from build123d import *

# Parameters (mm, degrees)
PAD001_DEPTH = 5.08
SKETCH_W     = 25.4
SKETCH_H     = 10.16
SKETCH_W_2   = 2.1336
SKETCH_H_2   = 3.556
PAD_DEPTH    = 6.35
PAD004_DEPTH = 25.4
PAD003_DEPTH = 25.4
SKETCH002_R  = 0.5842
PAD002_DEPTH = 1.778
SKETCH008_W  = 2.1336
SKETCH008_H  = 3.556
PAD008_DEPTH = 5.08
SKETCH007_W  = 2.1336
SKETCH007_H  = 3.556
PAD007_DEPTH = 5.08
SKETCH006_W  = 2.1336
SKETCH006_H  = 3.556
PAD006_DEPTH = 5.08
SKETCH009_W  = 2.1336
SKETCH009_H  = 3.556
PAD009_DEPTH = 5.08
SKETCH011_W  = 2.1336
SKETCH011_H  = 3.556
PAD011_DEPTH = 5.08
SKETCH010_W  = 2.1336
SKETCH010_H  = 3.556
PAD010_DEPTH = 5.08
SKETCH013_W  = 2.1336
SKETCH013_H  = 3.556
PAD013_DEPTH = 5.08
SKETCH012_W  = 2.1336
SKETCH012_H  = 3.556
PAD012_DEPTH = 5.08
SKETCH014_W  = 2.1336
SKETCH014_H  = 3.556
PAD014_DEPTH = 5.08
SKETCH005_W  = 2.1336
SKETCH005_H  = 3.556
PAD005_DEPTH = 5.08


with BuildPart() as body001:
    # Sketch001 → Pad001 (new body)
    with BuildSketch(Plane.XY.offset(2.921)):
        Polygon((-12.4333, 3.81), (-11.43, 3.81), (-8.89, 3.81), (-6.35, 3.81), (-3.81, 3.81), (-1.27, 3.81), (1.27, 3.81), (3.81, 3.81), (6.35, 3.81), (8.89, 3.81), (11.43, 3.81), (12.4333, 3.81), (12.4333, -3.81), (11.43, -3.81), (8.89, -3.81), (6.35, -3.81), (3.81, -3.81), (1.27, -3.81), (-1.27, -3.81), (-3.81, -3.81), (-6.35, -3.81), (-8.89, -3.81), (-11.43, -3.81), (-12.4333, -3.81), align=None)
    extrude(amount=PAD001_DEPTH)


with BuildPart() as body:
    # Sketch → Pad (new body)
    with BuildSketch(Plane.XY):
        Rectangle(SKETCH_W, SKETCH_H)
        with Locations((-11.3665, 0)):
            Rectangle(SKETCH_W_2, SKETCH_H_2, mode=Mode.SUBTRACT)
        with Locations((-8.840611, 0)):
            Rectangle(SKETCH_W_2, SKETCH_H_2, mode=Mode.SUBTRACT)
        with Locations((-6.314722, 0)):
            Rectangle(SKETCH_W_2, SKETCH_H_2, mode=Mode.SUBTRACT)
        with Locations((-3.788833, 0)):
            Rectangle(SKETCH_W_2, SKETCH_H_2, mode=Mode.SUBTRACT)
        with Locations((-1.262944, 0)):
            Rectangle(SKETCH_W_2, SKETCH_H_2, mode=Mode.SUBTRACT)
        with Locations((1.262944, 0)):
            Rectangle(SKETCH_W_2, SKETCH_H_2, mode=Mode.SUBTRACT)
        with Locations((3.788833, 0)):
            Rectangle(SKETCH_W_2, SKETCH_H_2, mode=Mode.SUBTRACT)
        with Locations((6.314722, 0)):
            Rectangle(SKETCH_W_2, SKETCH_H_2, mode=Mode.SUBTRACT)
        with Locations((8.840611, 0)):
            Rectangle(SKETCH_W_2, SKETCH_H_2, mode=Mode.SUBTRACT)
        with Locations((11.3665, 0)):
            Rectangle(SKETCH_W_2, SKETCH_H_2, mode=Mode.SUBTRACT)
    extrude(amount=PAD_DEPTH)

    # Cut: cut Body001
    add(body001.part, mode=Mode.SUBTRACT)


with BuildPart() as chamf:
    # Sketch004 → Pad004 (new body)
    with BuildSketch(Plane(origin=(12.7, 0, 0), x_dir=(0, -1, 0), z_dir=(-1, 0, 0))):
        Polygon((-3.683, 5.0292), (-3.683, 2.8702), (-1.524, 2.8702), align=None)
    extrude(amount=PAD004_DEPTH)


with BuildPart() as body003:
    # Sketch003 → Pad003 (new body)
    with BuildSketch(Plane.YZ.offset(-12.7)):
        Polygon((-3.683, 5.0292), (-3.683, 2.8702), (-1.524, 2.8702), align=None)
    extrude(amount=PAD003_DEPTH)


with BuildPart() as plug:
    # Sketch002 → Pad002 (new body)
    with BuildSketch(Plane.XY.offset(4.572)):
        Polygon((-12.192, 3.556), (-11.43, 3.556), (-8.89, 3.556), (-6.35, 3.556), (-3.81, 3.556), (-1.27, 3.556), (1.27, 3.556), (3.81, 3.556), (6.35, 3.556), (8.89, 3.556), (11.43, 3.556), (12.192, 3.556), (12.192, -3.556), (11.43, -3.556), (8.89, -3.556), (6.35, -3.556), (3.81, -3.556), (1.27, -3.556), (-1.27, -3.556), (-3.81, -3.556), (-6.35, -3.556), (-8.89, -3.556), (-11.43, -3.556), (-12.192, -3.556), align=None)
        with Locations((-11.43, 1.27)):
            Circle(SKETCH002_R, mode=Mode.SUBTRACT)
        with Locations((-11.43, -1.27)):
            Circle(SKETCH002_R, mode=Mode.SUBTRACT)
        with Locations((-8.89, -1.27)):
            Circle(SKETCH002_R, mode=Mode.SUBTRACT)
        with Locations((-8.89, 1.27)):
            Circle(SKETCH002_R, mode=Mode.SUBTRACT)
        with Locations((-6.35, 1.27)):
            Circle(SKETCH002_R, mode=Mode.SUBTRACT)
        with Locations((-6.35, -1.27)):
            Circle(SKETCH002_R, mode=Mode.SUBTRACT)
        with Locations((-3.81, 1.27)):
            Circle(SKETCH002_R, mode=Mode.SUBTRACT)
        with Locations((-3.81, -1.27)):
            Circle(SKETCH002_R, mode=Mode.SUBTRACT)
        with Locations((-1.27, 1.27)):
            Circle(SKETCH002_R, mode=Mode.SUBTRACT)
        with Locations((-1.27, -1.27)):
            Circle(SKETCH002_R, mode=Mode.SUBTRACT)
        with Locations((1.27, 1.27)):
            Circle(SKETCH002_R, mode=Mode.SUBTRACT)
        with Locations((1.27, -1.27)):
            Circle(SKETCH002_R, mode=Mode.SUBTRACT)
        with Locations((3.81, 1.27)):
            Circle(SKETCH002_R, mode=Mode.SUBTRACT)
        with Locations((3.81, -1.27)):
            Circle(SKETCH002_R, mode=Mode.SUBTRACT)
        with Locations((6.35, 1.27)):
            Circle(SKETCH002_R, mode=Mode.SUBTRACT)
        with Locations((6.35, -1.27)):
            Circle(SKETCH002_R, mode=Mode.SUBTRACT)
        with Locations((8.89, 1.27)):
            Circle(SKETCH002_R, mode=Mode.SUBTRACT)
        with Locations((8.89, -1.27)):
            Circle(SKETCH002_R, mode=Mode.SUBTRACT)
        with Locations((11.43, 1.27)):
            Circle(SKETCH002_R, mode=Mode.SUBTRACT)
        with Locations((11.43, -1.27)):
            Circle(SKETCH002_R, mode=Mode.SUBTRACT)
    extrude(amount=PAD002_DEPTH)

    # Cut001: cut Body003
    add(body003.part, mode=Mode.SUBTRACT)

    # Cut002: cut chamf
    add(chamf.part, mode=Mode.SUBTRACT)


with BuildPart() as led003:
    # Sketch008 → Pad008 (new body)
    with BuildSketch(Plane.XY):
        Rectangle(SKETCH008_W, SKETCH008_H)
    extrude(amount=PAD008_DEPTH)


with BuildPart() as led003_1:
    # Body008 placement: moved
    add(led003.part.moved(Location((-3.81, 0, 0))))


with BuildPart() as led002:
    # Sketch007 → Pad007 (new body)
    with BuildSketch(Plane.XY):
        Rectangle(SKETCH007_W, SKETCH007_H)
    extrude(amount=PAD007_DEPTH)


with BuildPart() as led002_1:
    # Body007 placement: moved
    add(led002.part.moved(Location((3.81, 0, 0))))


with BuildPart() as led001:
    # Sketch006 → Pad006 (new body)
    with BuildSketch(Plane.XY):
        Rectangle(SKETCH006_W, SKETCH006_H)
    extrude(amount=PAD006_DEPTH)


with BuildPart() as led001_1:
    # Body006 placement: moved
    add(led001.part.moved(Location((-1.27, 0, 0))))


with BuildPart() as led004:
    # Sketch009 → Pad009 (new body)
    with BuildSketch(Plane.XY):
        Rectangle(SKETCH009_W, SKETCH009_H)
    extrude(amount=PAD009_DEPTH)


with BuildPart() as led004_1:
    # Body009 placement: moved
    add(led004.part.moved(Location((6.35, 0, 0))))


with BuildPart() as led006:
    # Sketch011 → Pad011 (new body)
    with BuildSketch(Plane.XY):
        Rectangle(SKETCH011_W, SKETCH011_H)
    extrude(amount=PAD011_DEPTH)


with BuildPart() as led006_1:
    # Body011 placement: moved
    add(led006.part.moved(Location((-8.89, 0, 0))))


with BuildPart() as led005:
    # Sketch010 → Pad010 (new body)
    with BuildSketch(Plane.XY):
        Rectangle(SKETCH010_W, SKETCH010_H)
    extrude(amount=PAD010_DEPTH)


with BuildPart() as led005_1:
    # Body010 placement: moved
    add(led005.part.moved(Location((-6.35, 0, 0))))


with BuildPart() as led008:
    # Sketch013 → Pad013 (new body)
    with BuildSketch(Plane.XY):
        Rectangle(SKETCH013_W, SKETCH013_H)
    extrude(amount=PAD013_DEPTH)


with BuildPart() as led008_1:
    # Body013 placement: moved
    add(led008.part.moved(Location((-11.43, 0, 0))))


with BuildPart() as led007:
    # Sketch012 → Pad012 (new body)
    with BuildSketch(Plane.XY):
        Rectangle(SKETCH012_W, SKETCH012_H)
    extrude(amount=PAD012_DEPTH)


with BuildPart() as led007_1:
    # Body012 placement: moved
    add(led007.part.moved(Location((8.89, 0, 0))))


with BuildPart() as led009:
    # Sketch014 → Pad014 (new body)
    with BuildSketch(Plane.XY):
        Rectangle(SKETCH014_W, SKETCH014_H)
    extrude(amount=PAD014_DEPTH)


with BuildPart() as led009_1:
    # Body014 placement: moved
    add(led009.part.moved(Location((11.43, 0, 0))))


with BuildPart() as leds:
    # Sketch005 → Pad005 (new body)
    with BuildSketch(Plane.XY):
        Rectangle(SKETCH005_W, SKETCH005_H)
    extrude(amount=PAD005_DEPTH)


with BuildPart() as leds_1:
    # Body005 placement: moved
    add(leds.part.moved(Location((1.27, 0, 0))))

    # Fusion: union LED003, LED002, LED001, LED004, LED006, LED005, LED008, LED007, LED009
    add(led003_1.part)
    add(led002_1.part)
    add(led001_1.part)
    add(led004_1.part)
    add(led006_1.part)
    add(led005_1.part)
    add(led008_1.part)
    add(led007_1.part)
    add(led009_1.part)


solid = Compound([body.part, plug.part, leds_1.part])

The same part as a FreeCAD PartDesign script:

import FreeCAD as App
import Part
import Sketcher

V = App.Vector
Q = App.Units.Quantity

doc = App.newDocument("Part")
body = doc.addObject("PartDesign::Body", "Body")

# Sketch on XY plane
sketch1 = body.newObject("Sketcher::SketchObject", "Sketch")
sketch1.AttachmentSupport = (doc.getObject("XY_Plane"), [""])
sketch1.MapMode = "FlatFace"
sketch1.AttachmentOffset = App.Placement(V(0, 0, 0.115 * 25.4), App.Rotation())
sketch1.addGeometry([
    Part.LineSegment(V(12, 4, 0), V(-12, 4, 0)),
    Part.LineSegment(V(-12, 4, 0), V(-12, -4, 0)),
    Part.LineSegment(V(-12, -4, 0), V(12, -4, 0)),
    Part.LineSegment(V(12, -4, 0), V(12, 4, 0)),
], False)
sketch1.addConstraint([
    Sketcher.Constraint("Coincident", 0, 2, 1, 1),
    Sketcher.Constraint("Coincident", 1, 2, 2, 1),
    Sketcher.Constraint("Coincident", 2, 2, 3, 1),
    Sketcher.Constraint("Coincident", 3, 2, 0, 1),
    Sketcher.Constraint("Horizontal", 0),
    Sketcher.Constraint("Vertical", 1),
    Sketcher.Constraint("Horizontal", 2),
    Sketcher.Constraint("Vertical", 3),
    Sketcher.Constraint("Symmetric", 0, 2, 2, 2, -1, 1),
    Sketcher.Constraint("DistanceY", 1, 2, 1, 1, Q("0.3 in")),
    Sketcher.Constraint("DistanceX", 0, 2, 0, 1, Q("0.979 in")),
])
pad1 = body.newObject("PartDesign::Pad", "Pad")
pad1.Profile = sketch1
pad1.Length = Q("0.2 in")
body2 = doc.addObject("PartDesign::Body", "Body001")

# Sketch on XY plane
sketch2 = body2.newObject("Sketcher::SketchObject", "Sketch001")
sketch2.AttachmentSupport = (doc.getObject("XY_Plane001"), [""])
sketch2.MapMode = "FlatFace"
sketch2.addGeometry([
    Part.LineSegment(V(-12.7, 5.1, 0), V(-12.7, -5.1, 0)),  # 0
    Part.LineSegment(V(-12.7, -5.1, 0), V(12.7, -5.1, 0)),  # 1
    Part.LineSegment(V(12.7, -5.1, 0), V(12.7, 5.1, 0)),  # 2
    Part.LineSegment(V(12.7, 5.1, 0), V(-12.7, 5.1, 0)),  # 3
    Part.LineSegment(V(-10.3, -1.8, 0), V(-12.4, -1.8, 0)),  # 4
    Part.LineSegment(V(-12.4, -1.8, 0), V(-12.4, 1.8, 0)),  # 5
    Part.LineSegment(V(-12.4, 1.8, 0), V(-10.3, 1.8, 0)),  # 6
    Part.LineSegment(V(-10.3, 1.8, 0), V(-10.3, -1.8, 0)),  # 7
    Part.LineSegment(V(-7.8, -1.8, 0), V(-9.9, -1.8, 0)),  # 8
    Part.LineSegment(V(-9.9, -1.8, 0), V(-9.9, 1.8, 0)),  # 9
    Part.LineSegment(V(-9.9, 1.8, 0), V(-7.8, 1.8, 0)),  # 10
    Part.LineSegment(V(-7.8, 1.8, 0), V(-7.8, -1.8, 0)),  # 11
    Part.LineSegment(V(-5.2, -1.8, 0), V(-7.4, -1.8, 0)),  # 12
    Part.LineSegment(V(-7.4, -1.8, 0), V(-7.4, 1.8, 0)),  # 13
    Part.LineSegment(V(-7.4, 1.8, 0), V(-5.2, 1.8, 0)),  # 14
    Part.LineSegment(V(-5.2, 1.8, 0), V(-5.2, -1.8, 0)),  # 15
    Part.LineSegment(V(-2.7, -1.8, 0), V(-4.9, -1.8, 0)),  # 16
    Part.LineSegment(V(-4.9, -1.8, 0), V(-4.9, 1.8, 0)),  # 17
    Part.LineSegment(V(-4.9, 1.8, 0), V(-2.7, 1.8, 0)),  # 18
    Part.LineSegment(V(-2.7, 1.8, 0), V(-2.7, -1.8, 0)),  # 19
    Part.LineSegment(V(-0.2, -1.8, 0), V(-2.3, -1.8, 0)),  # 20
    Part.LineSegment(V(-2.3, -1.8, 0), V(-2.3, 1.8, 0)),  # 21
    Part.LineSegment(V(-2.3, 1.8, 0), V(-0.2, 1.8, 0)),  # 22
    Part.LineSegment(V(-0.2, 1.8, 0), V(-0.2, -1.8, 0)),  # 23
    Part.LineSegment(V(2.3, -1.8, 0), V(0.2, -1.8, 0)),  # 24
    Part.LineSegment(V(0.2, -1.8, 0), V(0.2, 1.8, 0)),  # 25
    Part.LineSegment(V(0.2, 1.8, 0), V(2.3, 1.8, 0)),  # 26
    Part.LineSegment(V(2.3, 1.8, 0), V(2.3, -1.8, 0)),  # 27
    Part.LineSegment(V(4.9, -1.8, 0), V(2.7, -1.8, 0)),  # 28
    Part.LineSegment(V(2.7, -1.8, 0), V(2.7, 1.8, 0)),  # 29
    Part.LineSegment(V(2.7, 1.8, 0), V(4.9, 1.8, 0)),  # 30
    Part.LineSegment(V(4.9, 1.8, 0), V(4.9, -1.8, 0)),  # 31
    Part.LineSegment(V(7.4, -1.8, 0), V(5.2, -1.8, 0)),  # 32
    Part.LineSegment(V(5.2, -1.8, 0), V(5.2, 1.8, 0)),  # 33
    Part.LineSegment(V(5.2, 1.8, 0), V(7.4, 1.8, 0)),  # 34
    Part.LineSegment(V(7.4, 1.8, 0), V(7.4, -1.8, 0)),  # 35
    Part.LineSegment(V(9.9, -1.8, 0), V(7.8, -1.8, 0)),  # 36
    Part.LineSegment(V(7.8, -1.8, 0), V(7.8, 1.8, 0)),  # 37
    Part.LineSegment(V(7.8, 1.8, 0), V(9.9, 1.8, 0)),  # 38
    Part.LineSegment(V(9.9, 1.8, 0), V(9.9, -1.8, 0)),  # 39
    Part.LineSegment(V(12.4, -1.8, 0), V(10.3, -1.8, 0)),  # 40
    Part.LineSegment(V(10.3, -1.8, 0), V(10.3, 1.8, 0)),  # 41
    Part.LineSegment(V(10.3, 1.8, 0), V(12.4, 1.8, 0)),  # 42
    Part.LineSegment(V(12.4, 1.8, 0), V(12.4, -1.8, 0)),  # 43
], False)
sketch2.addConstraint([
    Sketcher.Constraint("Coincident", 0, 2, 1, 1),
    Sketcher.Constraint("Coincident", 1, 2, 2, 1),
    Sketcher.Constraint("Coincident", 2, 2, 3, 1),
    Sketcher.Constraint("Coincident", 3, 2, 0, 1),
    Sketcher.Constraint("Coincident", 4, 2, 5, 1),
    Sketcher.Constraint("Coincident", 5, 2, 6, 1),
    Sketcher.Constraint("Coincident", 6, 2, 7, 1),
    Sketcher.Constraint("Coincident", 7, 2, 4, 1),
    Sketcher.Constraint("Coincident", 8, 2, 9, 1),
    Sketcher.Constraint("Coincident", 9, 2, 10, 1),
    Sketcher.Constraint("Coincident", 10, 2, 11, 1),
    Sketcher.Constraint("Coincident", 11, 2, 8, 1),
    Sketcher.Constraint("Coincident", 12, 2, 13, 1),
    Sketcher.Constraint("Coincident", 13, 2, 14, 1),
    Sketcher.Constraint("Coincident", 14, 2, 15, 1),
    Sketcher.Constraint("Coincident", 15, 2, 12, 1),
    Sketcher.Constraint("Coincident", 16, 2, 17, 1),
    Sketcher.Constraint("Coincident", 17, 2, 18, 1),
    Sketcher.Constraint("Coincident", 18, 2, 19, 1),
    Sketcher.Constraint("Coincident", 19, 2, 16, 1),
    Sketcher.Constraint("Coincident", 20, 2, 21, 1),
    Sketcher.Constraint("Coincident", 21, 2, 22, 1),
    Sketcher.Constraint("Coincident", 22, 2, 23, 1),
    Sketcher.Constraint("Coincident", 23, 2, 20, 1),
    Sketcher.Constraint("Coincident", 24, 2, 25, 1),
    Sketcher.Constraint("Coincident", 25, 2, 26, 1),
    Sketcher.Constraint("Coincident", 26, 2, 27, 1),
    Sketcher.Constraint("Coincident", 27, 2, 24, 1),
    Sketcher.Constraint("Coincident", 28, 2, 29, 1),
    Sketcher.Constraint("Coincident", 29, 2, 30, 1),
    Sketcher.Constraint("Coincident", 30, 2, 31, 1),
    Sketcher.Constraint("Coincident", 31, 2, 28, 1),
    Sketcher.Constraint("Coincident", 32, 2, 33, 1),
    Sketcher.Constraint("Coincident", 33, 2, 34, 1),
    Sketcher.Constraint("Coincident", 34, 2, 35, 1),
    Sketcher.Constraint("Coincident", 35, 2, 32, 1),
    Sketcher.Constraint("Coincident", 36, 2, 37, 1),
    Sketcher.Constraint("Coincident", 37, 2, 38, 1),
    Sketcher.Constraint("Coincident", 38, 2, 39, 1),
    Sketcher.Constraint("Coincident", 39, 2, 36, 1),
    Sketcher.Constraint("Coincident", 40, 2, 41, 1),
    Sketcher.Constraint("Coincident", 41, 2, 42, 1),
    Sketcher.Constraint("Coincident", 42, 2, 43, 1),
    Sketcher.Constraint("Coincident", 43, 2, 40, 1),
    Sketcher.Constraint("Vertical", 0),
    Sketcher.Constraint("Horizontal", 1),
    Sketcher.Constraint("Vertical", 2),
    Sketcher.Constraint("Horizontal", 3),
    Sketcher.Constraint("Horizontal", 4),
    Sketcher.Constraint("Vertical", 5),
    Sketcher.Constraint("Horizontal", 6),
    Sketcher.Constraint("Vertical", 7),
    Sketcher.Constraint("Horizontal", 8),
    Sketcher.Constraint("Vertical", 9),
    Sketcher.Constraint("Horizontal", 10),
    Sketcher.Constraint("Vertical", 11),
    Sketcher.Constraint("Horizontal", 12),
    Sketcher.Constraint("Vertical", 13),
    Sketcher.Constraint("Horizontal", 14),
    Sketcher.Constraint("Vertical", 15),
    Sketcher.Constraint("Horizontal", 16),
    Sketcher.Constraint("Vertical", 17),
    Sketcher.Constraint("Horizontal", 18),
    Sketcher.Constraint("Vertical", 19),
    Sketcher.Constraint("Horizontal", 20),
    Sketcher.Constraint("Vertical", 21),
    Sketcher.Constraint("Horizontal", 22),
    Sketcher.Constraint("Vertical", 23),
    Sketcher.Constraint("Horizontal", 24),
    Sketcher.Constraint("Vertical", 25),
    Sketcher.Constraint("Horizontal", 26),
    Sketcher.Constraint("Vertical", 27),
    Sketcher.Constraint("Horizontal", 28),
    Sketcher.Constraint("Vertical", 29),
    Sketcher.Constraint("Horizontal", 30),
    Sketcher.Constraint("Vertical", 31),
    Sketcher.Constraint("Horizontal", 32),
    Sketcher.Constraint("Vertical", 33),
    Sketcher.Constraint("Horizontal", 34),
    Sketcher.Constraint("Vertical", 35),
    Sketcher.Constraint("Horizontal", 36),
    Sketcher.Constraint("Vertical", 37),
    Sketcher.Constraint("Horizontal", 38),
    Sketcher.Constraint("Vertical", 39),
    Sketcher.Constraint("Horizontal", 40),
    Sketcher.Constraint("Vertical", 41),
    Sketcher.Constraint("Horizontal", 42),
    Sketcher.Constraint("Vertical", 43),
    Sketcher.Constraint("Symmetric", 0, 2, 2, 2, -1, 1),
    Sketcher.Constraint("Symmetric", 22, 2, 24, 2, -1, 1),
    Sketcher.Constraint("Symmetric", 20, 2, 26, 2, -1, 1),
    Sketcher.Constraint("Symmetric", 18, 2, 28, 2, -1, 1),
    Sketcher.Constraint("Symmetric", 16, 2, 30, 2, -1, 1),
    Sketcher.Constraint("Symmetric", 14, 2, 32, 2, -1, 1),
    Sketcher.Constraint("Symmetric", 12, 2, 34, 2, -1, 1),
    Sketcher.Constraint("Symmetric", 10, 2, 36, 2, -1, 1),
    Sketcher.Constraint("Symmetric", 8, 2, 38, 2, -1, 1),
    Sketcher.Constraint("Symmetric", 6, 2, 40, 2, -1, 1),
    Sketcher.Constraint("Symmetric", 4, 2, 42, 2, -1, 1),
    Sketcher.Constraint("Horizontal", 7, 2, 8, 2),
    Sketcher.Constraint("Horizontal", 6, 2, 9, 2),
    Sketcher.Constraint("Horizontal", 11, 2, 12, 2),
    Sketcher.Constraint("Horizontal", 10, 2, 13, 2),
    Sketcher.Constraint("Horizontal", 15, 2, 16, 2),
    Sketcher.Constraint("Horizontal", 14, 2, 17, 2),
    Sketcher.Constraint("Horizontal", 19, 2, 20, 2),
    Sketcher.Constraint("Horizontal", 18, 2, 21, 2),
    Sketcher.Constraint("Horizontal", 23, 2, 24, 2),
    Sketcher.Constraint("Equal", 6, 8),
    Sketcher.Constraint("Equal", 10, 12),
    Sketcher.Constraint("Equal", 14, 16),
    Sketcher.Constraint("Equal", 18, 20),
    Sketcher.Constraint("DistanceX", 1, 1, 1, 2, Q("1 in")),
    Sketcher.Constraint("DistanceY", 0, 2, 0, 1, Q("0.4 in")),
    Sketcher.Constraint("DistanceY", 5, 1, 5, 2, Q("0.14 in")),
    Sketcher.Constraint("DistanceX", 4, 2, 4, 1, Q("0.084 in")),
    Sketcher.Constraint("DistanceX", 4, 2, -1, 1, Q("0.4895 in")),
    Sketcher.Constraint("DistanceX", 8, 2, -1, 1, Q("9.907411 mm")),
    Sketcher.Constraint("DistanceX", 11, 2, 12, 2, Q("0.392289 mm")),
    Sketcher.Constraint("DistanceX", 15, 2, 16, 2, Q("0.392289 mm")),
    Sketcher.Constraint("DistanceX", 19, 2, 20, 2, Q("0.392289 mm")),
])
pad2 = body2.newObject("PartDesign::Pad", "Pad001")
pad2.Profile = sketch2
pad2.Length = Q("0.25 in")
doc.recompute()

boolean = body2.newObject("PartDesign::Boolean", "Boolean")
boolean.Type = "Cut"
boolean.addObjects([body])
body3 = doc.addObject("PartDesign::Body", "Body002")

# Sketch on YZ plane
sketch3 = body3.newObject("Sketcher::SketchObject", "Sketch002")
sketch3.AttachmentSupport = (doc.getObject("YZ_Plane002"), [""])
sketch3.MapMode = "FlatFace"
sketch3.AttachmentOffset = App.Placement(V(0, 0, 0.5 * 25.4), App.Rotation())
sketch3.addGeometry([
    Part.LineSegment(V(3.7, 5, 0), V(3.7, 2.9, 0)),
    Part.LineSegment(V(3.7, 2.9, 0), V(1.5, 2.9, 0)),
    Part.LineSegment(V(1.5, 2.9, 0), V(3.7, 5, 0)),
], False)
sketch3.addConstraint([
    Sketcher.Constraint("Coincident", 0, 2, 1, 1),
    Sketcher.Constraint("Coincident", 1, 2, 2, 1),
    Sketcher.Constraint("Coincident", 2, 2, 0, 1),
    Sketcher.Constraint("Vertical", 0),
    Sketcher.Constraint("Horizontal", 1),
    Sketcher.Constraint("Equal", 1, 0),
    Sketcher.Constraint("DistanceX", 1, 2, 1, 1, Q("0.085 in")),
    Sketcher.Constraint("DistanceX", -1, 1, 1, 2, Q("0.06 in")),
    Sketcher.Constraint("DistanceY", -1, 1, 0, 2, Q("0.113 in")),
])
pad3 = body3.newObject("PartDesign::Pad", "Pad002")
pad3.Profile = sketch3
pad3.Length = Q("1 in")
pad3.Reversed = True
body4 = doc.addObject("PartDesign::Body", "Body003")

# Sketch on YZ plane
sketch4 = body4.newObject("Sketcher::SketchObject", "Sketch003")
sketch4.AttachmentSupport = (doc.getObject("YZ_Plane003"), [""])
sketch4.MapMode = "FlatFace"
sketch4.AttachmentOffset = App.Placement(V(0, 0, -0.5 * 25.4), App.Rotation())
sketch4.addGeometry([
    Part.LineSegment(V(-3.7, 5, 0), V(-3.7, 2.9, 0)),
    Part.LineSegment(V(-3.7, 2.9, 0), V(-1.5, 2.9, 0)),
    Part.LineSegment(V(-1.5, 2.9, 0), V(-3.7, 5, 0)),
], False)
sketch4.addConstraint([
    Sketcher.Constraint("Coincident", 0, 2, 1, 1),
    Sketcher.Constraint("Coincident", 1, 2, 2, 1),
    Sketcher.Constraint("Coincident", 2, 2, 0, 1),
    Sketcher.Constraint("Vertical", 0),
    Sketcher.Constraint("Horizontal", 1),
    Sketcher.Constraint("Equal", 1, 0),
    Sketcher.Constraint("DistanceX", 1, 1, 1, 2, Q("0.085 in")),
    Sketcher.Constraint("DistanceX", 1, 2, -1, 1, Q("0.06 in")),
    Sketcher.Constraint("DistanceY", -1, 1, 0, 2, Q("0.113 in")),
])
pad4 = body4.newObject("PartDesign::Pad", "Pad003")
pad4.Profile = sketch4
pad4.Length = Q("1 in")
body5 = doc.addObject("PartDesign::Body", "Body004")

# Sketch on XY plane
sketch5 = body5.newObject("Sketcher::SketchObject", "Sketch004")
sketch5.AttachmentSupport = (doc.getObject("XY_Plane004"), [""])
sketch5.MapMode = "FlatFace"
sketch5.AttachmentOffset = App.Placement(V(0, 0, 0.18 * 25.4), App.Rotation())
sketch5.addGeometry([
    Part.LineSegment(V(12.2, 3.6, 0), V(-12.2, 3.6, 0)),  # 0
    Part.LineSegment(V(-12.2, 3.6, 0), V(-12.2, -3.6, 0)),  # 1
    Part.LineSegment(V(-12.2, -3.6, 0), V(12.2, -3.6, 0)),  # 2
    Part.LineSegment(V(12.2, -3.6, 0), V(12.2, 3.6, 0)),  # 3
    Part.Circle(V(11.4, -1.3, 0), V(0, 0, 1), 0.6),  # 4
    Part.Circle(V(8.9, -1.3, 0), V(0, 0, 1), 0.6),  # 5
    Part.Circle(V(6.3, -1.3, 0), V(0, 0, 1), 0.6),  # 6
    Part.Circle(V(3.8, -1.3, 0), V(0, 0, 1), 0.6),  # 7
    Part.Circle(V(1.3, -1.3, 0), V(0, 0, 1), 0.6),  # 8
    Part.Circle(V(-1.3, -1.3, 0), V(0, 0, 1), 0.6),  # 9
    Part.Circle(V(-3.8, -1.3, 0), V(0, 0, 1), 0.6),  # 10
    Part.Circle(V(-6.3, -1.3, 0), V(0, 0, 1), 0.6),  # 11
    Part.Circle(V(-8.9, -1.3, 0), V(0, 0, 1), 0.6),  # 12
    Part.Circle(V(-11.4, -1.3, 0), V(0, 0, 1), 0.6),  # 13
    Part.Circle(V(11.4, 1.3, 0), V(0, 0, 1), 0.6),  # 14
    Part.Circle(V(8.9, 1.3, 0), V(0, 0, 1), 0.6),  # 15
    Part.Circle(V(6.3, 1.3, 0), V(0, 0, 1), 0.6),  # 16
    Part.Circle(V(3.8, 1.3, 0), V(0, 0, 1), 0.6),  # 17
    Part.Circle(V(1.3, 1.3, 0), V(0, 0, 1), 0.6),  # 18
    Part.Circle(V(-1.3, 1.3, 0), V(0, 0, 1), 0.6),  # 19
    Part.Circle(V(-3.8, 1.3, 0), V(0, 0, 1), 0.6),  # 20
    Part.Circle(V(-6.3, 1.3, 0), V(0, 0, 1), 0.6),  # 21
    Part.Circle(V(-8.9, 1.3, 0), V(0, 0, 1), 0.6),  # 22
    Part.Circle(V(-11.4, 1.3, 0), V(0, 0, 1), 0.6),  # 23
], False)
sketch5.addConstraint([
    Sketcher.Constraint("Coincident", 0, 2, 1, 1),
    Sketcher.Constraint("Coincident", 1, 2, 2, 1),
    Sketcher.Constraint("Coincident", 2, 2, 3, 1),
    Sketcher.Constraint("Coincident", 3, 2, 0, 1),
    Sketcher.Constraint("Horizontal", 0),
    Sketcher.Constraint("Vertical", 1),
    Sketcher.Constraint("Horizontal", 2),
    Sketcher.Constraint("Vertical", 3),
    Sketcher.Constraint("Equal", 4, 5),
    Sketcher.Constraint("Equal", 5, 6),
    Sketcher.Constraint("Equal", 6, 7),
    Sketcher.Constraint("Equal", 7, 8),
    Sketcher.Constraint("Equal", 8, 9),
    Sketcher.Constraint("Equal", 9, 10),
    Sketcher.Constraint("Equal", 10, 11),
    Sketcher.Constraint("Equal", 11, 12),
    Sketcher.Constraint("Equal", 12, 13),
    Sketcher.Constraint("Equal", 13, 14),
    Sketcher.Constraint("Equal", 14, 15),
    Sketcher.Constraint("Equal", 15, 16),
    Sketcher.Constraint("Equal", 16, 17),
    Sketcher.Constraint("Equal", 17, 18),
    Sketcher.Constraint("Equal", 18, 19),
    Sketcher.Constraint("Equal", 19, 20),
    Sketcher.Constraint("Equal", 20, 21),
    Sketcher.Constraint("Equal", 21, 22),
    Sketcher.Constraint("Equal", 22, 23),
    Sketcher.Constraint("Symmetric", 13, 3, 14, 3, -1, 1),
    Sketcher.Constraint("Symmetric", 12, 3, 15, 3, -1, 1),
    Sketcher.Constraint("Symmetric", 11, 3, 16, 3, -1, 1),
    Sketcher.Constraint("Symmetric", 10, 3, 17, 3, -1, 1),
    Sketcher.Constraint("Symmetric", 9, 3, 18, 3, -1, 1),
    Sketcher.Constraint("Symmetric", 8, 3, 19, 3, -1, 1),
    Sketcher.Constraint("Symmetric", 7, 3, 20, 3, -1, 1),
    Sketcher.Constraint("Symmetric", 6, 3, 21, 3, -1, 1),
    Sketcher.Constraint("Symmetric", 5, 3, 22, 3, -1, 1),
    Sketcher.Constraint("Symmetric", 4, 3, 23, 3, -1, 1),
    Sketcher.Constraint("Symmetric", 0, 2, 2, 2, -1, 1),
    Sketcher.Constraint("Symmetric", 8, 3, 9, 3, -2),
    Sketcher.Constraint("Symmetric", 7, 3, 10, 3, -2),
    Sketcher.Constraint("Symmetric", 6, 3, 11, 3, -2),
    Sketcher.Constraint("Symmetric", 5, 3, 12, 3, -2),
    Sketcher.Constraint("Symmetric", 4, 3, 13, 3, -2),
    Sketcher.Constraint("Horizontal", 4, 3, 5, 3),
    Sketcher.Constraint("Horizontal", 5, 3, 6, 3),
    Sketcher.Constraint("Horizontal", 6, 3, 7, 3),
    Sketcher.Constraint("Horizontal", 7, 3, 8, 3),
    Sketcher.Constraint("Diameter", 4, Q("0.046 in")),
    Sketcher.Constraint("DistanceX", 0, 2, 0, 1, Q("0.96 in")),
    Sketcher.Constraint("DistanceY", 1, 2, 1, 1, Q("0.28 in")),
    Sketcher.Constraint("DistanceX", 5, 3, 4, 3, Q("0.1 in")),
    Sketcher.Constraint("DistanceX", 6, 3, 5, 3, Q("0.1 in")),
    Sketcher.Constraint("DistanceX", 7, 3, 6, 3, Q("0.1 in")),
    Sketcher.Constraint("DistanceX", 8, 3, 7, 3, Q("0.1 in")),
    Sketcher.Constraint("DistanceX", 9, 3, 8, 3, Q("0.1 in")),
    Sketcher.Constraint("DistanceY", 4, 3, 14, 3, Q("0.1 in")),
])
pad5 = body5.newObject("PartDesign::Pad", "Pad004")
pad5.Profile = sketch5
pad5.Length = Q("0.07 in")
doc.recompute()

boolean2 = body5.newObject("PartDesign::Boolean", "Boolean001")
boolean2.Type = "Cut"
boolean2.addObjects([body4])
doc.recompute()

boolean3 = body5.newObject("PartDesign::Boolean", "Boolean002")
boolean3.Type = "Cut"
boolean3.addObjects([body3])
body6 = doc.addObject("PartDesign::Body", "Body005")

# Sketch on XY plane
sketch6 = body6.newObject("Sketcher::SketchObject", "Sketch005")
sketch6.AttachmentSupport = (doc.getObject("XY_Plane005"), [""])
sketch6.MapMode = "FlatFace"
sketch6.addGeometry([
    Part.LineSegment(V(-1.1, 1.8, 0), V(-1.1, -1.8, 0)),
    Part.LineSegment(V(-1.1, -1.8, 0), V(1.1, -1.8, 0)),
    Part.LineSegment(V(1.1, -1.8, 0), V(1.1, 1.8, 0)),
    Part.LineSegment(V(1.1, 1.8, 0), V(-1.1, 1.8, 0)),
], False)
sketch6.addConstraint([
    Sketcher.Constraint("Coincident", 0, 2, 1, 1),
    Sketcher.Constraint("Coincident", 1, 2, 2, 1),
    Sketcher.Constraint("Coincident", 2, 2, 3, 1),
    Sketcher.Constraint("Coincident", 3, 2, 0, 1),
    Sketcher.Constraint("Vertical", 0),
    Sketcher.Constraint("Horizontal", 1),
    Sketcher.Constraint("Vertical", 2),
    Sketcher.Constraint("Horizontal", 3),
    Sketcher.Constraint("Symmetric", 0, 2, 2, 2, -1, 1),
    Sketcher.Constraint("DistanceY", 0, 2, 0, 1, Q("0.14 in")),
    Sketcher.Constraint("DistanceX", 1, 1, 1, 2, Q("0.084 in")),
])
pad6 = body6.newObject("PartDesign::Pad", "Pad005")
pad6.Profile = sketch6
pad6.Length = Q("0.2 in")
body7 = doc.addObject("PartDesign::Body", "Body006")
doc.recompute()

body6.Placement = App.Placement(V(-3.81, 0, 0), App.Rotation(V(0, 0, 1), 0))
boolean4 = body7.newObject("PartDesign::Boolean", "Boolean003")
boolean4.Type = "Fuse"
boolean4.addObjects([body6])
body8 = doc.addObject("PartDesign::Body", "Body007")

# Sketch on XY plane
sketch7 = body8.newObject("Sketcher::SketchObject", "Sketch006")
sketch7.AttachmentSupport = (doc.getObject("XY_Plane007"), [""])
sketch7.MapMode = "FlatFace"
sketch7.addGeometry([
    Part.LineSegment(V(-1.1, 1.8, 0), V(-1.1, -1.8, 0)),
    Part.LineSegment(V(-1.1, -1.8, 0), V(1.1, -1.8, 0)),
    Part.LineSegment(V(1.1, -1.8, 0), V(1.1, 1.8, 0)),
    Part.LineSegment(V(1.1, 1.8, 0), V(-1.1, 1.8, 0)),
], False)
sketch7.addConstraint([
    Sketcher.Constraint("Coincident", 0, 2, 1, 1),
    Sketcher.Constraint("Coincident", 1, 2, 2, 1),
    Sketcher.Constraint("Coincident", 2, 2, 3, 1),
    Sketcher.Constraint("Coincident", 3, 2, 0, 1),
    Sketcher.Constraint("Vertical", 0),
    Sketcher.Constraint("Horizontal", 1),
    Sketcher.Constraint("Vertical", 2),
    Sketcher.Constraint("Horizontal", 3),
    Sketcher.Constraint("Symmetric", 0, 2, 2, 2, -1, 1),
    Sketcher.Constraint("DistanceY", 0, 2, 0, 1, Q("0.14 in")),
    Sketcher.Constraint("DistanceX", 1, 1, 1, 2, Q("0.084 in")),
])
pad7 = body8.newObject("PartDesign::Pad", "Pad006")
pad7.Profile = sketch7
pad7.Length = Q("0.2 in")
body9 = doc.addObject("PartDesign::Body", "Body008")
doc.recompute()

body8.Placement = App.Placement(V(3.81, 0, 0), App.Rotation(V(0, 0, 1), 0))
boolean5 = body9.newObject("PartDesign::Boolean", "Boolean004")
boolean5.Type = "Fuse"
boolean5.addObjects([body8])
body10 = doc.addObject("PartDesign::Body", "Body009")

# Sketch on XY plane
sketch8 = body10.newObject("Sketcher::SketchObject", "Sketch007")
sketch8.AttachmentSupport = (doc.getObject("XY_Plane009"), [""])
sketch8.MapMode = "FlatFace"
sketch8.addGeometry([
    Part.LineSegment(V(-1.1, 1.8, 0), V(-1.1, -1.8, 0)),
    Part.LineSegment(V(-1.1, -1.8, 0), V(1.1, -1.8, 0)),
    Part.LineSegment(V(1.1, -1.8, 0), V(1.1, 1.8, 0)),
    Part.LineSegment(V(1.1, 1.8, 0), V(-1.1, 1.8, 0)),
], False)
sketch8.addConstraint([
    Sketcher.Constraint("Coincident", 0, 2, 1, 1),
    Sketcher.Constraint("Coincident", 1, 2, 2, 1),
    Sketcher.Constraint("Coincident", 2, 2, 3, 1),
    Sketcher.Constraint("Coincident", 3, 2, 0, 1),
    Sketcher.Constraint("Vertical", 0),
    Sketcher.Constraint("Horizontal", 1),
    Sketcher.Constraint("Vertical", 2),
    Sketcher.Constraint("Horizontal", 3),
    Sketcher.Constraint("Symmetric", 0, 2, 2, 2, -1, 1),
    Sketcher.Constraint("DistanceY", 0, 2, 0, 1, Q("0.14 in")),
    Sketcher.Constraint("DistanceX", 1, 1, 1, 2, Q("0.084 in")),
])
pad8 = body10.newObject("PartDesign::Pad", "Pad007")
pad8.Profile = sketch8
pad8.Length = Q("0.2 in")
body11 = doc.addObject("PartDesign::Body", "Body010")
doc.recompute()

body10.Placement = App.Placement(V(-1.27, 0, 0), App.Rotation(V(0, 0, 1), 0))
boolean6 = body11.newObject("PartDesign::Boolean", "Boolean005")
boolean6.Type = "Fuse"
boolean6.addObjects([body10])
body12 = doc.addObject("PartDesign::Body", "Body011")

# Sketch on XY plane
sketch9 = body12.newObject("Sketcher::SketchObject", "Sketch008")
sketch9.AttachmentSupport = (doc.getObject("XY_Plane011"), [""])
sketch9.MapMode = "FlatFace"
sketch9.addGeometry([
    Part.LineSegment(V(-1.1, 1.8, 0), V(-1.1, -1.8, 0)),
    Part.LineSegment(V(-1.1, -1.8, 0), V(1.1, -1.8, 0)),
    Part.LineSegment(V(1.1, -1.8, 0), V(1.1, 1.8, 0)),
    Part.LineSegment(V(1.1, 1.8, 0), V(-1.1, 1.8, 0)),
], False)
sketch9.addConstraint([
    Sketcher.Constraint("Coincident", 0, 2, 1, 1),
    Sketcher.Constraint("Coincident", 1, 2, 2, 1),
    Sketcher.Constraint("Coincident", 2, 2, 3, 1),
    Sketcher.Constraint("Coincident", 3, 2, 0, 1),
    Sketcher.Constraint("Vertical", 0),
    Sketcher.Constraint("Horizontal", 1),
    Sketcher.Constraint("Vertical", 2),
    Sketcher.Constraint("Horizontal", 3),
    Sketcher.Constraint("Symmetric", 0, 2, 2, 2, -1, 1),
    Sketcher.Constraint("DistanceY", 0, 2, 0, 1, Q("0.14 in")),
    Sketcher.Constraint("DistanceX", 1, 1, 1, 2, Q("0.084 in")),
])
pad9 = body12.newObject("PartDesign::Pad", "Pad008")
pad9.Profile = sketch9
pad9.Length = Q("0.2 in")
body13 = doc.addObject("PartDesign::Body", "Body012")
doc.recompute()

body12.Placement = App.Placement(V(6.35, 0, 0), App.Rotation(V(0, 0, 1), 0))
boolean7 = body13.newObject("PartDesign::Boolean", "Boolean006")
boolean7.Type = "Fuse"
boolean7.addObjects([body12])
body14 = doc.addObject("PartDesign::Body", "Body013")

# Sketch on XY plane
sketch10 = body14.newObject("Sketcher::SketchObject", "Sketch009")
sketch10.AttachmentSupport = (doc.getObject("XY_Plane013"), [""])
sketch10.MapMode = "FlatFace"
sketch10.addGeometry([
    Part.LineSegment(V(-1.1, 1.8, 0), V(-1.1, -1.8, 0)),
    Part.LineSegment(V(-1.1, -1.8, 0), V(1.1, -1.8, 0)),
    Part.LineSegment(V(1.1, -1.8, 0), V(1.1, 1.8, 0)),
    Part.LineSegment(V(1.1, 1.8, 0), V(-1.1, 1.8, 0)),
], False)
sketch10.addConstraint([
    Sketcher.Constraint("Coincident", 0, 2, 1, 1),
    Sketcher.Constraint("Coincident", 1, 2, 2, 1),
    Sketcher.Constraint("Coincident", 2, 2, 3, 1),
    Sketcher.Constraint("Coincident", 3, 2, 0, 1),
    Sketcher.Constraint("Vertical", 0),
    Sketcher.Constraint("Horizontal", 1),
    Sketcher.Constraint("Vertical", 2),
    Sketcher.Constraint("Horizontal", 3),
    Sketcher.Constraint("Symmetric", 0, 2, 2, 2, -1, 1),
    Sketcher.Constraint("DistanceY", 0, 2, 0, 1, Q("0.14 in")),
    Sketcher.Constraint("DistanceX", 1, 1, 1, 2, Q("0.084 in")),
])
pad10 = body14.newObject("PartDesign::Pad", "Pad009")
pad10.Profile = sketch10
pad10.Length = Q("0.2 in")
body15 = doc.addObject("PartDesign::Body", "Body014")
doc.recompute()

body14.Placement = App.Placement(V(-8.89, 0, 0), App.Rotation(V(0, 0, 1), 0))
boolean8 = body15.newObject("PartDesign::Boolean", "Boolean007")
boolean8.Type = "Fuse"
boolean8.addObjects([body14])
body16 = doc.addObject("PartDesign::Body", "Body015")

# Sketch on XY plane
sketch11 = body16.newObject("Sketcher::SketchObject", "Sketch010")
sketch11.AttachmentSupport = (doc.getObject("XY_Plane015"), [""])
sketch11.MapMode = "FlatFace"
sketch11.addGeometry([
    Part.LineSegment(V(-1.1, 1.8, 0), V(-1.1, -1.8, 0)),
    Part.LineSegment(V(-1.1, -1.8, 0), V(1.1, -1.8, 0)),
    Part.LineSegment(V(1.1, -1.8, 0), V(1.1, 1.8, 0)),
    Part.LineSegment(V(1.1, 1.8, 0), V(-1.1, 1.8, 0)),
], False)
sketch11.addConstraint([
    Sketcher.Constraint("Coincident", 0, 2, 1, 1),
    Sketcher.Constraint("Coincident", 1, 2, 2, 1),
    Sketcher.Constraint("Coincident", 2, 2, 3, 1),
    Sketcher.Constraint("Coincident", 3, 2, 0, 1),
    Sketcher.Constraint("Vertical", 0),
    Sketcher.Constraint("Horizontal", 1),
    Sketcher.Constraint("Vertical", 2),
    Sketcher.Constraint("Horizontal", 3),
    Sketcher.Constraint("Symmetric", 0, 2, 2, 2, -1, 1),
    Sketcher.Constraint("DistanceY", 0, 2, 0, 1, Q("0.14 in")),
    Sketcher.Constraint("DistanceX", 1, 1, 1, 2, Q("0.084 in")),
])
pad11 = body16.newObject("PartDesign::Pad", "Pad010")
pad11.Profile = sketch11
pad11.Length = Q("0.2 in")
body17 = doc.addObject("PartDesign::Body", "Body016")
doc.recompute()

body16.Placement = App.Placement(V(-6.35, 0, 0), App.Rotation(V(0, 0, 1), 0))
boolean9 = body17.newObject("PartDesign::Boolean", "Boolean008")
boolean9.Type = "Fuse"
boolean9.addObjects([body16])
body18 = doc.addObject("PartDesign::Body", "Body017")

# Sketch on XY plane
sketch12 = body18.newObject("Sketcher::SketchObject", "Sketch011")
sketch12.AttachmentSupport = (doc.getObject("XY_Plane017"), [""])
sketch12.MapMode = "FlatFace"
sketch12.addGeometry([
    Part.LineSegment(V(-1.1, 1.8, 0), V(-1.1, -1.8, 0)),
    Part.LineSegment(V(-1.1, -1.8, 0), V(1.1, -1.8, 0)),
    Part.LineSegment(V(1.1, -1.8, 0), V(1.1, 1.8, 0)),
    Part.LineSegment(V(1.1, 1.8, 0), V(-1.1, 1.8, 0)),
], False)
sketch12.addConstraint([
    Sketcher.Constraint("Coincident", 0, 2, 1, 1),
    Sketcher.Constraint("Coincident", 1, 2, 2, 1),
    Sketcher.Constraint("Coincident", 2, 2, 3, 1),
    Sketcher.Constraint("Coincident", 3, 2, 0, 1),
    Sketcher.Constraint("Vertical", 0),
    Sketcher.Constraint("Horizontal", 1),
    Sketcher.Constraint("Vertical", 2),
    Sketcher.Constraint("Horizontal", 3),
    Sketcher.Constraint("Symmetric", 0, 2, 2, 2, -1, 1),
    Sketcher.Constraint("DistanceY", 0, 2, 0, 1, Q("0.14 in")),
    Sketcher.Constraint("DistanceX", 1, 1, 1, 2, Q("0.084 in")),
])
pad12 = body18.newObject("PartDesign::Pad", "Pad011")
pad12.Profile = sketch12
pad12.Length = Q("0.2 in")
body19 = doc.addObject("PartDesign::Body", "Body018")
doc.recompute()

body18.Placement = App.Placement(V(-11.43, 0, 0), App.Rotation(V(0, 0, 1), 0))
boolean10 = body19.newObject("PartDesign::Boolean", "Boolean009")
boolean10.Type = "Fuse"
boolean10.addObjects([body18])
body20 = doc.addObject("PartDesign::Body", "Body019")

# Sketch on XY plane
sketch13 = body20.newObject("Sketcher::SketchObject", "Sketch012")
sketch13.AttachmentSupport = (doc.getObject("XY_Plane019"), [""])
sketch13.MapMode = "FlatFace"
sketch13.addGeometry([
    Part.LineSegment(V(-1.1, 1.8, 0), V(-1.1, -1.8, 0)),
    Part.LineSegment(V(-1.1, -1.8, 0), V(1.1, -1.8, 0)),
    Part.LineSegment(V(1.1, -1.8, 0), V(1.1, 1.8, 0)),
    Part.LineSegment(V(1.1, 1.8, 0), V(-1.1, 1.8, 0)),
], False)
sketch13.addConstraint([
    Sketcher.Constraint("Coincident", 0, 2, 1, 1),
    Sketcher.Constraint("Coincident", 1, 2, 2, 1),
    Sketcher.Constraint("Coincident", 2, 2, 3, 1),
    Sketcher.Constraint("Coincident", 3, 2, 0, 1),
    Sketcher.Constraint("Vertical", 0),
    Sketcher.Constraint("Horizontal", 1),
    Sketcher.Constraint("Vertical", 2),
    Sketcher.Constraint("Horizontal", 3),
    Sketcher.Constraint("Symmetric", 0, 2, 2, 2, -1, 1),
    Sketcher.Constraint("DistanceY", 0, 2, 0, 1, Q("0.14 in")),
    Sketcher.Constraint("DistanceX", 1, 1, 1, 2, Q("0.084 in")),
])
pad13 = body20.newObject("PartDesign::Pad", "Pad012")
pad13.Profile = sketch13
pad13.Length = Q("0.2 in")
body21 = doc.addObject("PartDesign::Body", "Body020")
doc.recompute()

body20.Placement = App.Placement(V(8.89, 0, 0), App.Rotation(V(0, 0, 1), 0))
boolean11 = body21.newObject("PartDesign::Boolean", "Boolean010")
boolean11.Type = "Fuse"
boolean11.addObjects([body20])
body22 = doc.addObject("PartDesign::Body", "Body021")

# Sketch on XY plane
sketch14 = body22.newObject("Sketcher::SketchObject", "Sketch013")
sketch14.AttachmentSupport = (doc.getObject("XY_Plane021"), [""])
sketch14.MapMode = "FlatFace"
sketch14.addGeometry([
    Part.LineSegment(V(-1.1, 1.8, 0), V(-1.1, -1.8, 0)),
    Part.LineSegment(V(-1.1, -1.8, 0), V(1.1, -1.8, 0)),
    Part.LineSegment(V(1.1, -1.8, 0), V(1.1, 1.8, 0)),
    Part.LineSegment(V(1.1, 1.8, 0), V(-1.1, 1.8, 0)),
], False)
sketch14.addConstraint([
    Sketcher.Constraint("Coincident", 0, 2, 1, 1),
    Sketcher.Constraint("Coincident", 1, 2, 2, 1),
    Sketcher.Constraint("Coincident", 2, 2, 3, 1),
    Sketcher.Constraint("Coincident", 3, 2, 0, 1),
    Sketcher.Constraint("Vertical", 0),
    Sketcher.Constraint("Horizontal", 1),
    Sketcher.Constraint("Vertical", 2),
    Sketcher.Constraint("Horizontal", 3),
    Sketcher.Constraint("Symmetric", 0, 2, 2, 2, -1, 1),
    Sketcher.Constraint("DistanceY", 0, 2, 0, 1, Q("0.14 in")),
    Sketcher.Constraint("DistanceX", 1, 1, 1, 2, Q("0.084 in")),
])
pad14 = body22.newObject("PartDesign::Pad", "Pad013")
pad14.Profile = sketch14
pad14.Length = Q("0.2 in")
body23 = doc.addObject("PartDesign::Body", "Body022")
doc.recompute()

body22.Placement = App.Placement(V(11.43, 0, 0), App.Rotation(V(0, 0, 1), 0))
boolean12 = body23.newObject("PartDesign::Boolean", "Boolean011")
boolean12.Type = "Fuse"
boolean12.addObjects([body22])
body24 = doc.addObject("PartDesign::Body", "Body023")

# Sketch on XY plane
sketch15 = body24.newObject("Sketcher::SketchObject", "Sketch014")
sketch15.AttachmentSupport = (doc.getObject("XY_Plane023"), [""])
sketch15.MapMode = "FlatFace"
sketch15.addGeometry([
    Part.LineSegment(V(-1.1, 1.8, 0), V(-1.1, -1.8, 0)),
    Part.LineSegment(V(-1.1, -1.8, 0), V(1.1, -1.8, 0)),
    Part.LineSegment(V(1.1, -1.8, 0), V(1.1, 1.8, 0)),
    Part.LineSegment(V(1.1, 1.8, 0), V(-1.1, 1.8, 0)),
], False)
sketch15.addConstraint([
    Sketcher.Constraint("Coincident", 0, 2, 1, 1),
    Sketcher.Constraint("Coincident", 1, 2, 2, 1),
    Sketcher.Constraint("Coincident", 2, 2, 3, 1),
    Sketcher.Constraint("Coincident", 3, 2, 0, 1),
    Sketcher.Constraint("Vertical", 0),
    Sketcher.Constraint("Horizontal", 1),
    Sketcher.Constraint("Vertical", 2),
    Sketcher.Constraint("Horizontal", 3),
    Sketcher.Constraint("Symmetric", 0, 2, 2, 2, -1, 1),
    Sketcher.Constraint("DistanceY", 0, 2, 0, 1, Q("0.14 in")),
    Sketcher.Constraint("DistanceX", 1, 1, 1, 2, Q("0.084 in")),
])
pad15 = body24.newObject("PartDesign::Pad", "Pad014")
pad15.Profile = sketch15
pad15.Length = Q("0.2 in")
body25 = doc.addObject("PartDesign::Body", "Body024")
body25.AllowCompound = True
doc.recompute()

body24.Placement = App.Placement(V(1.27, 0, 0), App.Rotation(V(0, 0, 1), 0))
boolean13 = body25.newObject("PartDesign::Boolean", "Boolean012")
boolean13.Type = "Fuse"
boolean13.addObjects([body24])
doc.recompute()

boolean14 = body25.newObject("PartDesign::Boolean", "Boolean013")
boolean14.Type = "Fuse"
boolean14.addObjects([body7])
doc.recompute()

boolean15 = body25.newObject("PartDesign::Boolean", "Boolean014")
boolean15.Type = "Fuse"
boolean15.addObjects([body9])
doc.recompute()

boolean16 = body25.newObject("PartDesign::Boolean", "Boolean015")
boolean16.Type = "Fuse"
boolean16.addObjects([body11])
doc.recompute()

boolean17 = body25.newObject("PartDesign::Boolean", "Boolean016")
boolean17.Type = "Fuse"
boolean17.addObjects([body13])
doc.recompute()

boolean18 = body25.newObject("PartDesign::Boolean", "Boolean017")
boolean18.Type = "Fuse"
boolean18.addObjects([body15])
doc.recompute()

boolean19 = body25.newObject("PartDesign::Boolean", "Boolean018")
boolean19.Type = "Fuse"
boolean19.addObjects([body17])
doc.recompute()

boolean20 = body25.newObject("PartDesign::Boolean", "Boolean019")
boolean20.Type = "Fuse"
boolean20.addObjects([body19])
doc.recompute()

boolean21 = body25.newObject("PartDesign::Boolean", "Boolean020")
boolean21.Type = "Fuse"
boolean21.addObjects([body21])
doc.recompute()

boolean22 = body25.newObject("PartDesign::Boolean", "Boolean021")
boolean22.Type = "Fuse"
boolean22.addObjects([body23])

doc.recompute()
